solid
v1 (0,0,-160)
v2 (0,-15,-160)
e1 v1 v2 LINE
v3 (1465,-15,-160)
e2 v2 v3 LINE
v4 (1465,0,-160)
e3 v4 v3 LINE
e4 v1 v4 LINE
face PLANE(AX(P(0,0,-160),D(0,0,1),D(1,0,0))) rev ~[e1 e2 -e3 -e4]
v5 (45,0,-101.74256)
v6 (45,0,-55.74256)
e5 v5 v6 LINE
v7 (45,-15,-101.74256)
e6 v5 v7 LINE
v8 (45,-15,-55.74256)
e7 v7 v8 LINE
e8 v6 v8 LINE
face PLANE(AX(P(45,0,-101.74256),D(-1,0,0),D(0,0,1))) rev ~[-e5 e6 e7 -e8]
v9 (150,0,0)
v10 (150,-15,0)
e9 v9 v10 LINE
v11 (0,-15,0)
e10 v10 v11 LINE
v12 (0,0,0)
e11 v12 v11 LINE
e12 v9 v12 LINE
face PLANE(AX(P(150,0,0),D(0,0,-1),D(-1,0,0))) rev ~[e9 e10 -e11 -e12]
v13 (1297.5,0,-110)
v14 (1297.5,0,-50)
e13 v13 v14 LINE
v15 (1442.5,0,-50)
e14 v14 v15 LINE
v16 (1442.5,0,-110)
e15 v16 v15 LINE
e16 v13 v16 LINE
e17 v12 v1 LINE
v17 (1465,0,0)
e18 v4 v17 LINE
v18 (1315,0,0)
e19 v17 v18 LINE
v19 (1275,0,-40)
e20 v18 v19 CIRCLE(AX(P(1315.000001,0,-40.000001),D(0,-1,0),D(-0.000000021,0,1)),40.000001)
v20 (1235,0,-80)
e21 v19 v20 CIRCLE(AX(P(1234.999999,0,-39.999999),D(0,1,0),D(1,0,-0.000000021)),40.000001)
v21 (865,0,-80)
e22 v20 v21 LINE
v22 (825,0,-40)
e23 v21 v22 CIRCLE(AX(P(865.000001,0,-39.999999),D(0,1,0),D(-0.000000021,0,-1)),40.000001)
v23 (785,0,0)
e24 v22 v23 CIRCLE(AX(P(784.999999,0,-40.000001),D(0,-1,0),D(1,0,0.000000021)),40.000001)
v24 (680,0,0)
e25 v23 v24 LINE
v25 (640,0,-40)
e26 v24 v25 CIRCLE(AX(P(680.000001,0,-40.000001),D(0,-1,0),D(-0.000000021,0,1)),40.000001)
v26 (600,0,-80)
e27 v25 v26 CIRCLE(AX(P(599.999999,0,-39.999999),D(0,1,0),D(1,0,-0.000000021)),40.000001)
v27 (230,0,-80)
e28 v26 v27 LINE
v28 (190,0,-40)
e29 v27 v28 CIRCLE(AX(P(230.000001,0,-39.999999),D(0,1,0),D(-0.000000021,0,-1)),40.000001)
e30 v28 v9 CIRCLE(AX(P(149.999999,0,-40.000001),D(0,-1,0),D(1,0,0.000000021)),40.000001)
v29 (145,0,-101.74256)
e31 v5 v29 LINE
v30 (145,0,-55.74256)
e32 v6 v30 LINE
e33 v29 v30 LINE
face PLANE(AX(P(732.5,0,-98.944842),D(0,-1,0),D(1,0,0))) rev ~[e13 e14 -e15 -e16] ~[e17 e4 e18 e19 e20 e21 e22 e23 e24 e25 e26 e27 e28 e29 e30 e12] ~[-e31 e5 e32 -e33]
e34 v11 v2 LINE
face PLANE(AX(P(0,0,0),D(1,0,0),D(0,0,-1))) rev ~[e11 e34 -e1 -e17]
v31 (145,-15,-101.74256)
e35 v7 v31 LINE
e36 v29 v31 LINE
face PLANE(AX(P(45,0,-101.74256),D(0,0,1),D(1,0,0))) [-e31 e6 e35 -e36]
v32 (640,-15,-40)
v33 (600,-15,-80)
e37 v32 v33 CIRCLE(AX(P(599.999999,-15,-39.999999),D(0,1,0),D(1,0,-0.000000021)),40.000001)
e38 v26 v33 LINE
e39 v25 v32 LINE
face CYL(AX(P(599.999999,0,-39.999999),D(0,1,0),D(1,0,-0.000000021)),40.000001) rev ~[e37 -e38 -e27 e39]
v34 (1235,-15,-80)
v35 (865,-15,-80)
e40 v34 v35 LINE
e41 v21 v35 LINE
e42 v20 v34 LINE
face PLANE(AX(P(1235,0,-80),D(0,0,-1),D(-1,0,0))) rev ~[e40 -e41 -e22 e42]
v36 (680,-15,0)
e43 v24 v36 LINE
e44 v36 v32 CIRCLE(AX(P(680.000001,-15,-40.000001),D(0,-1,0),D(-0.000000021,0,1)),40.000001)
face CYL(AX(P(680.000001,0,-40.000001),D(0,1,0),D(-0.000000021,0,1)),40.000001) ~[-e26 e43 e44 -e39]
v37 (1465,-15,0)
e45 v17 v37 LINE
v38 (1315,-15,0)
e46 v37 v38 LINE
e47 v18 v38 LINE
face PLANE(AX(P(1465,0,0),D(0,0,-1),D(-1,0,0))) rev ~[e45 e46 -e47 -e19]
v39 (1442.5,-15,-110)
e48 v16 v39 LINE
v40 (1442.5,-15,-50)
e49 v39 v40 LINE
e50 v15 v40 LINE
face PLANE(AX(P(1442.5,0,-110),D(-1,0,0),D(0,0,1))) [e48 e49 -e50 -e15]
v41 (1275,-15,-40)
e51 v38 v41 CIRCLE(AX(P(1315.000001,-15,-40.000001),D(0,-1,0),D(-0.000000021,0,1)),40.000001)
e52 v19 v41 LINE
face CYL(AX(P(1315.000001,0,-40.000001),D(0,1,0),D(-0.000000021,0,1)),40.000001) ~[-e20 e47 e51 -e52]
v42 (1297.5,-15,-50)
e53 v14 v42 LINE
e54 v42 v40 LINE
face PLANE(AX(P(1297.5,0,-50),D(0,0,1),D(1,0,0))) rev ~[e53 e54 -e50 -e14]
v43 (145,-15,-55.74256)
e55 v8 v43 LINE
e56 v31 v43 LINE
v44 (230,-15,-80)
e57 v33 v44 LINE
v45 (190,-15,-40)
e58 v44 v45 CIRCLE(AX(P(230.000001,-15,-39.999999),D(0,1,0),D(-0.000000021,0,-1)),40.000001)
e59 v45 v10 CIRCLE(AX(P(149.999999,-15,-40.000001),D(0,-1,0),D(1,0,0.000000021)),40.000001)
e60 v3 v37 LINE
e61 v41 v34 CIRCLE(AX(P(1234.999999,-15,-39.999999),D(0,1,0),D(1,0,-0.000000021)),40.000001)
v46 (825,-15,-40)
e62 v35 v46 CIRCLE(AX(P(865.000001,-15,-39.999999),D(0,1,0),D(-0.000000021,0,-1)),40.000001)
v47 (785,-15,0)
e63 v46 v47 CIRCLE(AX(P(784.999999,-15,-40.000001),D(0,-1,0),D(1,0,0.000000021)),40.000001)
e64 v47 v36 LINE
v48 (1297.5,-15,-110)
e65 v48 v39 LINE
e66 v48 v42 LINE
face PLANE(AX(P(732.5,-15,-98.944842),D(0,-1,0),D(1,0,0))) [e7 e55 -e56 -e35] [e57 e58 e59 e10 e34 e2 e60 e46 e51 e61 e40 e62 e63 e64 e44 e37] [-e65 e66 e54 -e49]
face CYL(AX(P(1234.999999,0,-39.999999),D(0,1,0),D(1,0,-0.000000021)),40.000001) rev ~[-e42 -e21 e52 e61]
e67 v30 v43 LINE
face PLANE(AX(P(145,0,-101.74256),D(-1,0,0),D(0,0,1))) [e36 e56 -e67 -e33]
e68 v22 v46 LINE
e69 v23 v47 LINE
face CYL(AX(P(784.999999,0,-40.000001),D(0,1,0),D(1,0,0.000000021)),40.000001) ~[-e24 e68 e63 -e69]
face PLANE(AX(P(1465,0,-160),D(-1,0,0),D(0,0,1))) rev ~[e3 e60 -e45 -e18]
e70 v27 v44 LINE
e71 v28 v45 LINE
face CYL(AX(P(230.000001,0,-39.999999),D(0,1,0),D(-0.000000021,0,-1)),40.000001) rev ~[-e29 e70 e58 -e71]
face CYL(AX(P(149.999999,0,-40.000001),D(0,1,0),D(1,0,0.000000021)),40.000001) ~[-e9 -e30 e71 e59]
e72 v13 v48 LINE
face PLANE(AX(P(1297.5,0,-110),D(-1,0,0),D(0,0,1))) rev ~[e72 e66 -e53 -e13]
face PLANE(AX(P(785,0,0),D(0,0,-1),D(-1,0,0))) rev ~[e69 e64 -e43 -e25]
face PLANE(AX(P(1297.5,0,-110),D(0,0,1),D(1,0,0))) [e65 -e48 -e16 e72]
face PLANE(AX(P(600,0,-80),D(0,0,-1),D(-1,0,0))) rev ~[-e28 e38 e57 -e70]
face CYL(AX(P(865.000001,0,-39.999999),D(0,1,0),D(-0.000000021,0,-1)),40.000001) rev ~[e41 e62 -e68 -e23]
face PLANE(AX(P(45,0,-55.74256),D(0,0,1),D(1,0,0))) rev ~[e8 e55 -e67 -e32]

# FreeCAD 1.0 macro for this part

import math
import FreeCAD as App
import Part
import Sketcher


def add_polygon(sketch, points):
    """Adds a closed chain of lines whose ends are joined by coincident constraints."""
    first, n = sketch.GeometryCount, len(points)
    for a, b in zip(points, points[1:] + points[:1]):
        sketch.addGeometry(Part.LineSegment(App.Vector(*a, 0), App.Vector(*b, 0)), False)
    for i in range(n):
        sketch.addConstraint(Sketcher.Constraint("Coincident", first + i, 2, first + (i + 1) % n, 1))

doc = App.newDocument("Part")
body = doc.addObject("PartDesign::Body", "Body")

# Sketch on XZ plane
sketch1 = body.newObject("Sketcher::SketchObject", "Sketch")
sketch1.AttachmentSupport = (doc.getObject("XZ_Plane"), [""])
sketch1.MapMode = "FlatFace"
sketch1.addGeometry(Part.LineSegment(App.Vector(150, 0, 0), App.Vector(0, 0, 0)), False)  # 0
sketch1.addGeometry(Part.LineSegment(App.Vector(0, 0, 0), App.Vector(0, -160, 0)), False)  # 1
sketch1.addGeometry(Part.LineSegment(App.Vector(0, -160, 0), App.Vector(1465, -160, 0)), False)  # 2
sketch1.addGeometry(Part.LineSegment(App.Vector(1465, -160, 0), App.Vector(1465, 0, 0)), False)  # 3
sketch1.addGeometry(Part.LineSegment(App.Vector(1465, 0, 0), App.Vector(1315, 0, 0)), False)  # 4
sketch1.addGeometry(Part.ArcOfCircle(Part.Circle(App.Vector(1315, -40, 0), App.Vector(0, 0, 1), 40), math.radians(90), math.radians(180)), False)  # 5
sketch1.addGeometry(Part.ArcOfCircle(Part.Circle(App.Vector(1235, -40, 0), App.Vector(0, 0, 1), 40), math.radians(-90), math.radians(0)), False)  # 6
sketch1.addGeometry(Part.LineSegment(App.Vector(1235, -80, 0), App.Vector(865, -80, 0)), False)  # 7
sketch1.addGeometry(Part.ArcOfCircle(Part.Circle(App.Vector(865, -40, 0), App.Vector(0, 0, 1), 40), math.radians(-180), math.radians(-90)), False)  # 8
sketch1.addGeometry(Part.ArcOfCircle(Part.Circle(App.Vector(785, -40, 0), App.Vector(0, 0, 1), 40), math.radians(0), math.radians(90)), False)  # 9
sketch1.addGeometry(Part.LineSegment(App.Vector(785, 0, 0), App.Vector(680, 0, 0)), False)  # 10
sketch1.addGeometry(Part.ArcOfCircle(Part.Circle(App.Vector(680, -40, 0), App.Vector(0, 0, 1), 40), math.radians(90), math.radians(180)), False)  # 11
sketch1.addGeometry(Part.ArcOfCircle(Part.Circle(App.Vector(600, -40, 0), App.Vector(0, 0, 1), 40), math.radians(-90), math.radians(0)), False)  # 12
sketch1.addGeometry(Part.LineSegment(App.Vector(600, -80, 0), App.Vector(230, -80, 0)), False)  # 13
sketch1.addGeometry(Part.ArcOfCircle(Part.Circle(App.Vector(230, -40, 0), App.Vector(0, 0, 1), 40), math.radians(-180), math.radians(-90)), False)  # 14
sketch1.addGeometry(Part.ArcOfCircle(Part.Circle(App.Vector(150, -40, 0), App.Vector(0, 0, 1), 40), math.radians(0), math.radians(90)), False)  # 15
add_polygon(sketch1, [(145, -102), (45, -102), (45, -56), (145, -56)])  # lines 16-19
add_polygon(sketch1, [(1442, -110), (1298, -110), (1298, -50), (1442, -50)])  # lines 20-23
sketch1.addConstraint([
    Sketcher.Constraint("Coincident", 0, 2, 1, 1),
    Sketcher.Constraint("Coincident", 1, 2, 2, 1),
    Sketcher.Constraint("Coincident", 2, 2, 3, 1),
    Sketcher.Constraint("Coincident", 3, 2, 4, 1),
    Sketcher.Constraint("Tangent", 4, 2, 5, 1),
    Sketcher.Constraint("Tangent", 5, 2, 6, 2),
    Sketcher.Constraint("Tangent", 6, 1, 7, 1),
    Sketcher.Constraint("Tangent", 7, 2, 8, 2),
    Sketcher.Constraint("Tangent", 8, 1, 9, 1),
    Sketcher.Constraint("Tangent", 9, 2, 10, 1),
    Sketcher.Constraint("Tangent", 10, 2, 11, 1),
    Sketcher.Constraint("Tangent", 11, 2, 12, 2),
    Sketcher.Constraint("Tangent", 12, 1, 13, 1),
    Sketcher.Constraint("Tangent", 13, 2, 14, 2),
    Sketcher.Constraint("Tangent", 14, 1, 15, 1),
    Sketcher.Constraint("Tangent", 15, 2, 0, 1),
    Sketcher.Constraint("Horizontal", 0),
    Sketcher.Constraint("Vertical", 1),
    Sketcher.Constraint("Horizontal", 2),
    Sketcher.Constraint("Vertical", 3),
    Sketcher.Constraint("Horizontal", 4),
    Sketcher.Constraint("Horizontal", 7),
    Sketcher.Constraint("Horizontal", 10),
    Sketcher.Constraint("Horizontal", 13),
    Sketcher.Constraint("Horizontal", 16),
    Sketcher.Constraint("Vertical", 17),
    Sketcher.Constraint("Horizontal", 18),
    Sketcher.Constraint("Vertical", 19),
    Sketcher.Constraint("Horizontal", 20),
    Sketcher.Constraint("Vertical", 21),
    Sketcher.Constraint("Horizontal", 22),
    Sketcher.Constraint("Vertical", 23),
    Sketcher.Constraint("Coincident", 0, 2, -1, 1),
    Sketcher.Constraint("Equal", 5, 6),
    Sketcher.Constraint("Equal", 6, 8),
    Sketcher.Constraint("Equal", 8, 9),
    Sketcher.Constraint("Equal", 9, 11),
    Sketcher.Constraint("Equal", 11, 12),
    Sketcher.Constraint("Equal", 12, 14),
    Sketcher.Constraint("Equal", 14, 15),
    Sketcher.Constraint("PointOnObject", 3, 2, -1),
    Sketcher.Constraint("PointOnObject", 9, 2, -1),
    Sketcher.Constraint("Horizontal", 5, 3, 6, 3),
    Sketcher.Constraint("Horizontal", 11, 3, 12, 3),
    Sketcher.Constraint("Equal", 0, 4),
    Sketcher.Constraint("Equal", 7, 13),
    Sketcher.Constraint("Radius", 5, 40.000001),
    Sketcher.Constraint("DistanceX", 0, 2, 0, 1, 150.0),
    Sketcher.Constraint("DistanceX", 2, 1, 2, 2, 1465.0),
    Sketcher.Constraint("DistanceX", 7, 2, 7, 1, 370.0),
    Sketcher.Constraint("DistanceX", 16, 2, 16, 1, 100.0),
    Sketcher.Constraint("DistanceX", 20, 2, 20, 1, 145.0),
    Sketcher.Constraint("DistanceY", 1, 2, 1, 1, 160.0),
    Sketcher.Constraint("DistanceY", 17, 1, 17, 2, 46.0),
    Sketcher.Constraint("DistanceY", 21, 1, 21, 2, 60.0),
    Sketcher.Constraint("DistanceX", -1, 1, 16, 2, 45.0),
    Sketcher.Constraint("DistanceY", 20, 2, -1, 1, 110.0),
    Sketcher.Constraint("DistanceX", -1, 1, 20, 2, 1297.5),
    Sketcher.Constraint("DistanceY", 16, 2, -1, 1, 101.74256),
])
pad1 = body.newObject("PartDesign::Pad", "Pad")
pad1.Profile = sketch1
pad1.Length = 15

doc.recompute()
